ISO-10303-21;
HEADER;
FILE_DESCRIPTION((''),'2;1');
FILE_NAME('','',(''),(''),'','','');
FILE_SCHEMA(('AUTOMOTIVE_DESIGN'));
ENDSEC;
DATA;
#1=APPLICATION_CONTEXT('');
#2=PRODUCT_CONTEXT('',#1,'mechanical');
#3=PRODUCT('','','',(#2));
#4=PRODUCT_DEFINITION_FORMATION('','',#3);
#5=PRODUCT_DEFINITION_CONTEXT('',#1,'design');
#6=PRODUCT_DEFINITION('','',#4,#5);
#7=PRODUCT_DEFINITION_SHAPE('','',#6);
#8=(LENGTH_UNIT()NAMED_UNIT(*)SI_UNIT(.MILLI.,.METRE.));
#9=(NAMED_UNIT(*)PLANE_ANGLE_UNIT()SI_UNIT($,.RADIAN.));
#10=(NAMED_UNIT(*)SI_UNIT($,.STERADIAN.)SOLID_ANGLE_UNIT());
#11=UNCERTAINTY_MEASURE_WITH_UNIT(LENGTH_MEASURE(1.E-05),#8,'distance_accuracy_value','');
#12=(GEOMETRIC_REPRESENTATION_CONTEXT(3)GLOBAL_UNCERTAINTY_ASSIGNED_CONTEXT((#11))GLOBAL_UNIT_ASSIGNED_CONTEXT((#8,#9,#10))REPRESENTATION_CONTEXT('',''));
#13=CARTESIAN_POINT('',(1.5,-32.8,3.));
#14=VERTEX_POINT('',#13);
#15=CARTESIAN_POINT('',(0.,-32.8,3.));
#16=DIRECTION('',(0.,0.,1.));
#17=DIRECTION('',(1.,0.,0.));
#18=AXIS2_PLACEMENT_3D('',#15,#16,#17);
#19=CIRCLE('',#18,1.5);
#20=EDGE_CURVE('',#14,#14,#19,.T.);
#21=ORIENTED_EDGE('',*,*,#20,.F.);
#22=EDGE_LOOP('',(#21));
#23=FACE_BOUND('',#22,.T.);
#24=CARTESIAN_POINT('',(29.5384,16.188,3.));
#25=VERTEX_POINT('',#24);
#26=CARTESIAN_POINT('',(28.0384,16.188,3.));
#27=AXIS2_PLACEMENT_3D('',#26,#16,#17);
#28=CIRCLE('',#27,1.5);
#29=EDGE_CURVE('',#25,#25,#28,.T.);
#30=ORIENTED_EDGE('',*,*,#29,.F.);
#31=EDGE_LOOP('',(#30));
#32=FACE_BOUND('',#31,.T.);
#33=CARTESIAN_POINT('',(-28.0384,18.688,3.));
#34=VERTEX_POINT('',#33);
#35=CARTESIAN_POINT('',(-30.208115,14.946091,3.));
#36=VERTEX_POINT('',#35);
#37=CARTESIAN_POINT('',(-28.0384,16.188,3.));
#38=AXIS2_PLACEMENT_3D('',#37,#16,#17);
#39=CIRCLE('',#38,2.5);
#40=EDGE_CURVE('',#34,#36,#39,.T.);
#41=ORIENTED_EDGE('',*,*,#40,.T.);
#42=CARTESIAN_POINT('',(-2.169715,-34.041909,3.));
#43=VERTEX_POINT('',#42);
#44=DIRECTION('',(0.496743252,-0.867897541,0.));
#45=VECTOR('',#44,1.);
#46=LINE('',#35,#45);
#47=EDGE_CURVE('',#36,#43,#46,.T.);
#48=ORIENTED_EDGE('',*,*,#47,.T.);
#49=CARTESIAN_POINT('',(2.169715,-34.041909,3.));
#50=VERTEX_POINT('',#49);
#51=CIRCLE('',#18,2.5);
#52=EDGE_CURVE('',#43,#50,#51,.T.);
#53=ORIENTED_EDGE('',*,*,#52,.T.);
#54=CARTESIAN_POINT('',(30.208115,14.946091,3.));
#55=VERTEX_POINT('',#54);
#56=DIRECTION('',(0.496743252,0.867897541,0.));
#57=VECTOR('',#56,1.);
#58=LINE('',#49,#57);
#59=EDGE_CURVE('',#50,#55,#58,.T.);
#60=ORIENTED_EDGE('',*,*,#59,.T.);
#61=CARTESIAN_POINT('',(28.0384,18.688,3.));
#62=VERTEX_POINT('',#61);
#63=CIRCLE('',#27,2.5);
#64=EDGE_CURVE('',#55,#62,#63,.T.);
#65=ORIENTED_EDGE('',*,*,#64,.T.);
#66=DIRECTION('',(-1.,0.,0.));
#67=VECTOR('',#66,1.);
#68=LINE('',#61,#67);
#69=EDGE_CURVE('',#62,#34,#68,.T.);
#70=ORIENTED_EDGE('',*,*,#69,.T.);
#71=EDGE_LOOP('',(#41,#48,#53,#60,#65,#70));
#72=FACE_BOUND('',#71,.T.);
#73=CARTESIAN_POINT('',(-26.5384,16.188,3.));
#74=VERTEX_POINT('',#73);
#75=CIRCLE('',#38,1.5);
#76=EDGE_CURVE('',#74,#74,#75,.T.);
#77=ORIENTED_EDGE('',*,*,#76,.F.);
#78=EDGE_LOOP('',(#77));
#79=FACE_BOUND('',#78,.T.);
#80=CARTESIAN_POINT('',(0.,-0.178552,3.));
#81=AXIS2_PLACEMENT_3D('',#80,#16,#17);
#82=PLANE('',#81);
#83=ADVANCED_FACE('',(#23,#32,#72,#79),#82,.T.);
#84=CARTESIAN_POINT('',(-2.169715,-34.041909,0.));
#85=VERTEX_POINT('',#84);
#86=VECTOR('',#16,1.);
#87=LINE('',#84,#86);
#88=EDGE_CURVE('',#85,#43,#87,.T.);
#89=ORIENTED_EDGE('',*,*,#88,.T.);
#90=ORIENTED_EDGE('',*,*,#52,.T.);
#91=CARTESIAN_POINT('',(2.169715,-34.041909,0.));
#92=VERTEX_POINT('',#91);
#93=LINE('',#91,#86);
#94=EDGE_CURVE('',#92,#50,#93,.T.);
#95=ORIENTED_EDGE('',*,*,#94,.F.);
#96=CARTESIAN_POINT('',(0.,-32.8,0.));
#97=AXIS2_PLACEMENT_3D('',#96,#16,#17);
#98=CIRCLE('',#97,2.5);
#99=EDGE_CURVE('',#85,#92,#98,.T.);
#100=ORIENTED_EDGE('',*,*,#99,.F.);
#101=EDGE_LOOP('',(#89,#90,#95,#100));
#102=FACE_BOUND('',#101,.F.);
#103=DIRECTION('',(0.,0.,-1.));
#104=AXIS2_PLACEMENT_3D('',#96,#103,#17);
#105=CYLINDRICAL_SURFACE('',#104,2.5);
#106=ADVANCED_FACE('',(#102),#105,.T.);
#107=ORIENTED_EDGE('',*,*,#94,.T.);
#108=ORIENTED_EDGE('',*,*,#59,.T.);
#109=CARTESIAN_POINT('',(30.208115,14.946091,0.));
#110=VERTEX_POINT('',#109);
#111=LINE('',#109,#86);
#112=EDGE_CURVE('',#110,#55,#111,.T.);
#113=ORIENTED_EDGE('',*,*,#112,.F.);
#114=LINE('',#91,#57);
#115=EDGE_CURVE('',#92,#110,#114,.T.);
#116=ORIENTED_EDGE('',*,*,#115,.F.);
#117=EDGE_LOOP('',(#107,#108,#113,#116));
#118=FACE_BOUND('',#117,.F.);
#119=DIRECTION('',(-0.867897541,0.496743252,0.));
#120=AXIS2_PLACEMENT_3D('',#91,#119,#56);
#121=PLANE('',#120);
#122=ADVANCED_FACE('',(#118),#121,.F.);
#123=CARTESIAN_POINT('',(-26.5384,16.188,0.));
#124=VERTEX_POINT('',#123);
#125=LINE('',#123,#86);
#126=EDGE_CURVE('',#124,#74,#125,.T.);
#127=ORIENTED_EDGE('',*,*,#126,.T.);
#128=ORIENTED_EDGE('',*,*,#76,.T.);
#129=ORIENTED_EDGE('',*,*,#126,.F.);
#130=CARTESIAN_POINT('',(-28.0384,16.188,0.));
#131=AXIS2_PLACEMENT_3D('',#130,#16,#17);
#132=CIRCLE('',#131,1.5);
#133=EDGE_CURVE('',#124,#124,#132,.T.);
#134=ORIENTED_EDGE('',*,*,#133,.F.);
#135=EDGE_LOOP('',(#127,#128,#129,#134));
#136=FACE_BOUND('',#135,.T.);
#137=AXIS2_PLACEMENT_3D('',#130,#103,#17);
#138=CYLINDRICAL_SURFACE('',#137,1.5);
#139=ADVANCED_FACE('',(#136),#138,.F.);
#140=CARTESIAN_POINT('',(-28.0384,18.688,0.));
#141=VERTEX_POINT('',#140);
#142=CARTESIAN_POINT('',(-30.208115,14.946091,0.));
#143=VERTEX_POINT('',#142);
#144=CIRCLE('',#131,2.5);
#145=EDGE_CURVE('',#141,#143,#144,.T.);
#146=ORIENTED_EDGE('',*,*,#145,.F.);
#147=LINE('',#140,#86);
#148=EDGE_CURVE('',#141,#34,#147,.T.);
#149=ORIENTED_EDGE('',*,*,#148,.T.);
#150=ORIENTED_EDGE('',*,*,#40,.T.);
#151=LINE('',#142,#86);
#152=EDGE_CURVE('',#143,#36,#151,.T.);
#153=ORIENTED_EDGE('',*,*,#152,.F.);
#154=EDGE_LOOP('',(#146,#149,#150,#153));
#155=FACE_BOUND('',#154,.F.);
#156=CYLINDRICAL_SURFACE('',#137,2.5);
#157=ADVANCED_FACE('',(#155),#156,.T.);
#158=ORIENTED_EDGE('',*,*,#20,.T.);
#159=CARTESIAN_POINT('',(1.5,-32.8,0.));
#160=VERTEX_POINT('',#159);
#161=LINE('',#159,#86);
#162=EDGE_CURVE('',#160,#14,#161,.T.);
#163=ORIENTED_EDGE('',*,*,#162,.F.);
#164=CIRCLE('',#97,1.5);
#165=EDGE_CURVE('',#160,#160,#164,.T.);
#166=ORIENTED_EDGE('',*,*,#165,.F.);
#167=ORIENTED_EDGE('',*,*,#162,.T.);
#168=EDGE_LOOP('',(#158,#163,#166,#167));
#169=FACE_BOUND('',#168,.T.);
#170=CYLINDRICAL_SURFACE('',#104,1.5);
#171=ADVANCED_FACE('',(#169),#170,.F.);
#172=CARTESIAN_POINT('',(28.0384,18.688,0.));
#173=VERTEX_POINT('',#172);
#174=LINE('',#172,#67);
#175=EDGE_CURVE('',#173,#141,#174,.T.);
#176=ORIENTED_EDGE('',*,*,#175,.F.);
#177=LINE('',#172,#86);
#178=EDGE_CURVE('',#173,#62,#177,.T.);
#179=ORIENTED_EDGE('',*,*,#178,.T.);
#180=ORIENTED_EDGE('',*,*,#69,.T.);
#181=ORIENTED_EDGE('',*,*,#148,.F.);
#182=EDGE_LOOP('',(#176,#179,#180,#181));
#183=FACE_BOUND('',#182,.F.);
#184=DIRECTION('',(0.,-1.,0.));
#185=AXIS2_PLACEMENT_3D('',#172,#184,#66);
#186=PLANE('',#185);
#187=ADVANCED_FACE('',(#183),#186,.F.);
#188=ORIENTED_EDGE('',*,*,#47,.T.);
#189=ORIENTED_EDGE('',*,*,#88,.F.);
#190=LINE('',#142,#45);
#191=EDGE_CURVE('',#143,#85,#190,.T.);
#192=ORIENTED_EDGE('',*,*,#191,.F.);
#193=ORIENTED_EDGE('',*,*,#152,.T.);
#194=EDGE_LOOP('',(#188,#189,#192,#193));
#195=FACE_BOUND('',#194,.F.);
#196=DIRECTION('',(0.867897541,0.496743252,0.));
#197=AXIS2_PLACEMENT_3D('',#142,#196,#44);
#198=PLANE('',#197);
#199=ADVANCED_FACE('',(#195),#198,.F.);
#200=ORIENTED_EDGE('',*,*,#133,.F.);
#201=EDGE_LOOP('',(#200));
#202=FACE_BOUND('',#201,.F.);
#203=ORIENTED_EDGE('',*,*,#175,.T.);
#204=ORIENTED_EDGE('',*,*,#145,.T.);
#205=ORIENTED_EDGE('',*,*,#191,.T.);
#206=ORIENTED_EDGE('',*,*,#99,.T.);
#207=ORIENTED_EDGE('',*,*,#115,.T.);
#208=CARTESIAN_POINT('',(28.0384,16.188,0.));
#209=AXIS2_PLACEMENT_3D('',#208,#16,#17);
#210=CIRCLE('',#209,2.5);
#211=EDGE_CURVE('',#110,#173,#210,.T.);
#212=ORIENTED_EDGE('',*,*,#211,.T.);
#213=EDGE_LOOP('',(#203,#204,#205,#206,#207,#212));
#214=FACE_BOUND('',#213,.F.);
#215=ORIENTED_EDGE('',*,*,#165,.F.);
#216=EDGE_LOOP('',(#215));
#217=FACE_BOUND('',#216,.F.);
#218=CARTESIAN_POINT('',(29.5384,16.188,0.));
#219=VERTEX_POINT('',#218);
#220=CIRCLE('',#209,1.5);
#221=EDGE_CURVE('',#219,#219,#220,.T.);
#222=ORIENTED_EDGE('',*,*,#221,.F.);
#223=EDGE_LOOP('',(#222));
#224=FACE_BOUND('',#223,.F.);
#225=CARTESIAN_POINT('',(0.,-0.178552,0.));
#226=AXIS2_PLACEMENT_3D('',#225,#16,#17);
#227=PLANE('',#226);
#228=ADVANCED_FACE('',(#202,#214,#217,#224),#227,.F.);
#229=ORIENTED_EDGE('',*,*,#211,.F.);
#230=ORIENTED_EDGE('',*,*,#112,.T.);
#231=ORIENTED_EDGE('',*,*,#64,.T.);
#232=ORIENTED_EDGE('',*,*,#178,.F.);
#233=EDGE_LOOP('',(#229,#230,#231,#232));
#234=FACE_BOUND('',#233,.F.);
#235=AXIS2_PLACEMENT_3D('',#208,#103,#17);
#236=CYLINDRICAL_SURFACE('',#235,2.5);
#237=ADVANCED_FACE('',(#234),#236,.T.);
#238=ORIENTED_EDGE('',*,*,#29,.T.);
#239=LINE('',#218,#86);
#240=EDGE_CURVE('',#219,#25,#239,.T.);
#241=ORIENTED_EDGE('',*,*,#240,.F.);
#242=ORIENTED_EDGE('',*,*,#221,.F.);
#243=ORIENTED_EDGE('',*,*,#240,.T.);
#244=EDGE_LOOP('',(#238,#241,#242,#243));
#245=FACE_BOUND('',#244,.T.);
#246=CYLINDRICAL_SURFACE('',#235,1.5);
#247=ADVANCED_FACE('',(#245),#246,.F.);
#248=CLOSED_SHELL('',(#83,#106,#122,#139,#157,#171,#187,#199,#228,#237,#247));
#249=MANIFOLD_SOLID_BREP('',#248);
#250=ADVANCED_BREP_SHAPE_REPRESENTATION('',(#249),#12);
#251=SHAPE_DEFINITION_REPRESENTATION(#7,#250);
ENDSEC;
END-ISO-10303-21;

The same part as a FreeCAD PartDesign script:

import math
import FreeCAD as App
import Part
import Sketcher
from FreeCAD import Vector
Q = App.Units.Quantity

doc = App.newDocument("Part")
body = doc.addObject("PartDesign::Body", "Body")

# Sketch on XY plane
sketch1 = body.newObject("Sketcher::SketchObject", "Sketch")
sketch1.AttachmentSupport = (doc.getObject("XY_Plane"), [""])
sketch1.MapMode = "FlatFace"
sketch1.addGeometry([
    Part.ArcOfCircle(Part.Circle(Vector(-28.0384, 16.188, 0), Vector(0, 0, 1), 2.5), math.radians(90), math.radians(209.7861)),  # 0
    Part.LineSegment(Vector(-30.2081, 14.9461, 0), Vector(-2.1697, -34.0419, 0)),  # 1
    Part.ArcOfCircle(Part.Circle(Vector(0, -32.8, 0), Vector(0, 0, 1), 2.499983), math.radians(-150.2139), math.radians(-29.7861)),  # 2
    Part.LineSegment(Vector(2.1697, -34.0419, 0), Vector(30.2081, 14.9461, 0)),  # 3
    Part.ArcOfCircle(Part.Circle(Vector(28.0384, 16.188, 0), Vector(0, 0, 1), 2.499983), math.radians(-29.7861), math.radians(90)),  # 4
    Part.LineSegment(Vector(28.0384, 18.688, 0), Vector(-28.0384, 18.688, 0)),  # 5
    Part.Circle(Vector(0, -32.8, 0), Vector(0, 0, 1), 1.5),  # 6
    Part.Circle(Vector(-28.0384, 16.188, 0), Vector(0, 0, 1), 1.5),  # 7
    Part.Circle(Vector(28.0384, 16.188, 0), Vector(0, 0, 1), 1.5),  # 8
], False)
sketch1.addConstraint([
    Sketcher.Constraint("Tangent", 0, 2, 1, 1),
    Sketcher.Constraint("Tangent", 1, 2, 2, 1),
    Sketcher.Constraint("Tangent", 2, 2, 3, 1),
    Sketcher.Constraint("Tangent", 3, 2, 4, 1),
    Sketcher.Constraint("Tangent", 4, 2, 5, 1),
    Sketcher.Constraint("Tangent", 5, 2, 0, 1),
    Sketcher.Constraint("Horizontal", 5),
    Sketcher.Constraint("Coincident", 6, 3, 2, 3),
    Sketcher.Constraint("Coincident", 7, 3, 0, 3),
    Sketcher.Constraint("Coincident", 8, 3, 4, 3),
    Sketcher.Constraint("Equal", 0, 2),
    Sketcher.Constraint("Equal", 2, 4),
    Sketcher.Constraint("Equal", 6, 7),
    Sketcher.Constraint("Equal", 7, 8),
    Sketcher.Constraint("Symmetric", 1, 2, 2, 2, -2),
    Sketcher.Constraint("Diameter", 6, Q("3 mm")),
    Sketcher.Constraint("Radius", 0, Q("2.5 mm")),
    Sketcher.Constraint("DistanceY", 2, 3, -1, 1, Q("32.8 mm")),
    Sketcher.Constraint("DistanceY", 1, 2, 0, 3, Q("50.23 mm")),
    Sketcher.Constraint("DistanceX", 5, 2, 5, 1, Q("56.0768 mm")),
])
pad1 = body.newObject("PartDesign::Pad", "Pad")
pad1.Profile = sketch1
pad1.Length = 3

doc.recompute()
